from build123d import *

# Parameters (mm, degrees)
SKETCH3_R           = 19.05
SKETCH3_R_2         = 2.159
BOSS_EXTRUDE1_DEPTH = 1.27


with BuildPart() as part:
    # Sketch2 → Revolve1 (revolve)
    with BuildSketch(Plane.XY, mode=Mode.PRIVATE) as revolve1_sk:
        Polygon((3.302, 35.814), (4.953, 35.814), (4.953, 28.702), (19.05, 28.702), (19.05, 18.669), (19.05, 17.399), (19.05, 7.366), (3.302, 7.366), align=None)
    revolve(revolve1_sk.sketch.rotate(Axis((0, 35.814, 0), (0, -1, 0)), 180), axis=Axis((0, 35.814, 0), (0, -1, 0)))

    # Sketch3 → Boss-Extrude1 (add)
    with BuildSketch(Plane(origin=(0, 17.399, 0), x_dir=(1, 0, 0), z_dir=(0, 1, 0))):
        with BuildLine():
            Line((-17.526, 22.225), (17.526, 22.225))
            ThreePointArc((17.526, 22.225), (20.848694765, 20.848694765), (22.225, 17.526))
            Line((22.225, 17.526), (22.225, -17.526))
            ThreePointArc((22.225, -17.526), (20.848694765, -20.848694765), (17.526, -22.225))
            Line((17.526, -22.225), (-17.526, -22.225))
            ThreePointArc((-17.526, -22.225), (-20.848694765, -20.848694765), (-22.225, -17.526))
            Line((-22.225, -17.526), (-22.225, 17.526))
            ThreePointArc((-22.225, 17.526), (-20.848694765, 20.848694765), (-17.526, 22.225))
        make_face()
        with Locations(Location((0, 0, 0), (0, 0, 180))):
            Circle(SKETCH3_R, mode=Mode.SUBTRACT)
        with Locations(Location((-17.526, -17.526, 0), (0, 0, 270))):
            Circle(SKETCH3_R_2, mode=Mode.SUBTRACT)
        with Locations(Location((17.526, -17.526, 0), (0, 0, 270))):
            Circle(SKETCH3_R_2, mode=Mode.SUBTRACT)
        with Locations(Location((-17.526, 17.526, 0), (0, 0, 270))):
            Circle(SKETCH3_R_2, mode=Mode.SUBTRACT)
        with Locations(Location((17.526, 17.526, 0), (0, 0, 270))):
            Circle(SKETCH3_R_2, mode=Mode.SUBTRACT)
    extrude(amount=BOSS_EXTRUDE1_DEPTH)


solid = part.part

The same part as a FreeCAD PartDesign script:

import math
import FreeCAD as App
import Part
import Sketcher
from FreeCAD import Vector
Q = App.Units.Quantity


def add_polygon(sketch, points):
    """Adds a closed chain of lines whose ends are joined by coincident constraints."""
    first, n = sketch.GeometryCount, len(points)
    for a, b in zip(points, points[1:] + points[:1]):
        sketch.addGeometry(Part.LineSegment(App.Vector(*a, 0), App.Vector(*b, 0)), False)
    for i in range(n):
        sketch.addConstraint(Sketcher.Constraint("Coincident", first + i, 2, first + (i + 1) % n, 1))

doc = App.newDocument("Part")
params = doc.addObject("Spreadsheet::Sheet", "Params")
for row, (alias, value) in enumerate([
    ("sketch1_width", "0.62 in"),
    ("sketch1_height", "1.12 in"),
    ("sketch1_height2", "0.84 in"),
    ("sketch1_width2", "0.065 in"),
    ("revolution_angle", "360 deg"),
    ("sketch2_diameter", "1.5 in"),
    ("sketch2_diameter2", "0.17 in"),
    ("sketch2_radius", "0.185 in"),
    ("sketch2_width", "1.38 in"),
    ("pad1_length", "0.05 in"),
], start=1):
    params.set(f"A{row}", alias)
    params.set(f"B{row}", "=" + value)
    params.setAlias(f"B{row}", alias)

body = doc.addObject("PartDesign::Body", "Body")

sketch1 = doc.addObject("Sketcher::SketchObject", "Sketch")
body.addObject(sketch1)
sketch1.AttachmentSupport = (doc.XY_Plane, [""])
sketch1.MapMode = "FlatFace"
add_polygon(sketch1, [(5, 35.8), (3.3, 35.8), (3.3, 7.4), (19.1, 7.4), (19.1, 28.7), (5, 28.7)])
sketch1.addConstraint(Sketcher.Constraint("Horizontal", 0))
sketch1.addConstraint(Sketcher.Constraint("Vertical", 1))
sketch1.addConstraint(Sketcher.Constraint("Horizontal", 2))
sketch1.addConstraint(Sketcher.Constraint("Vertical", 3))
sketch1.addConstraint(Sketcher.Constraint("Horizontal", 4))
sketch1.addConstraint(Sketcher.Constraint("Vertical", 5))
sketch1.addConstraint(Sketcher.Constraint("DistanceX", 2, 1, 2, 2, Q("0.62 in")))
sketch1.addConstraint(Sketcher.Constraint("DistanceY", 1, 2, 1, 1, Q("1.12 in")))
sketch1.addConstraint(Sketcher.Constraint("DistanceY", 3, 1, 3, 2, Q("0.84 in")))
sketch1.addConstraint(Sketcher.Constraint("DistanceX", 0, 2, 0, 1, Q("0.065 in")))
sketch1.addConstraint(Sketcher.Constraint("DistanceX", -1, 1, 0, 2, Q("0.13 in")))
sketch1.addConstraint(Sketcher.Constraint("DistanceY", -1, 1, 0, 2, Q("1.41 in")))
sketch1.setExpression("Constraints[12]", "Params.sketch1_width")
sketch1.setExpression("Constraints[13]", "Params.sketch1_height")
sketch1.setExpression("Constraints[14]", "Params.sketch1_height2")
sketch1.setExpression("Constraints[15]", "Params.sketch1_width2")
revolution = doc.addObject("PartDesign::Revolution", "Revolution")
body.addObject(revolution)
revolution.Profile = sketch1
revolution.ReferenceAxis = (sketch1, ["V_Axis"])
revolution.setExpression("Angle", "Params.revolution_angle")

sketch2 = doc.addObject("Sketcher::SketchObject", "Sketch001")
body.addObject(sketch2)
sketch2.AttachmentSupport = (doc.XZ_Plane, [""])
sketch2.MapMode = "FlatFace"
sketch2.AttachmentOffset = App.Placement(Vector(0, 0, -0.685 * 25.4), App.Rotation())
sketch2.addGeometry(Part.LineSegment(Vector(17.5, -22.2, 0), Vector(-17.5, -22.2, 0)), False)
sketch2.addGeometry(Part.ArcOfCircle(Part.Circle(Vector(-17.5, -17.5, 0), Vector(0, 0, 1), 4.7), math.radians(180), math.radians(270)), False)
sketch2.addGeometry(Part.LineSegment(Vector(-22.2, -17.5, 0), Vector(-22.2, 17.5, 0)), False)
sketch2.addGeometry(Part.ArcOfCircle(Part.Circle(Vector(-17.5, 17.5, 0), Vector(0, 0, 1), 4.7), math.radians(90), math.radians(180)), False)
sketch2.addGeometry(Part.LineSegment(Vector(-17.5, 22.2, 0), Vector(17.5, 22.2, 0)), False)
sketch2.addGeometry(Part.ArcOfCircle(Part.Circle(Vector(17.5, 17.5, 0), Vector(0, 0, 1), 4.7), math.radians(0), math.radians(90)), False)
sketch2.addGeometry(Part.LineSegment(Vector(22.2, 17.5, 0), Vector(22.2, -17.5, 0)), False)
sketch2.addGeometry(Part.ArcOfCircle(Part.Circle(Vector(17.5, -17.5, 0), Vector(0, 0, 1), 4.7), math.radians(-90), math.radians(0)), False)
sketch2.addGeometry(Part.Circle(Vector(17.5, 17.5, 0), Vector(0, 0, 1), 2.2), False)
sketch2.addGeometry(Part.Circle(Vector(-17.5, 17.5, 0), Vector(0, 0, 1), 2.2), False)
sketch2.addGeometry(Part.Circle(Vector(17.5, -17.5, 0), Vector(0, 0, 1), 2.2), False)
sketch2.addGeometry(Part.Circle(Vector(0, 0, 0), Vector(0, 0, 1), 19.1), False)
sketch2.addGeometry(Part.Circle(Vector(-17.5, -17.5, 0), Vector(0, 0, 1), 2.2), False)
sketch2.addConstraint(Sketcher.Constraint("Tangent", 0, 2, 1, 2))
sketch2.addConstraint(Sketcher.Constraint("Tangent", 1, 1, 2, 1))
sketch2.addConstraint(Sketcher.Constraint("Tangent", 2, 2, 3, 2))
sketch2.addConstraint(Sketcher.Constraint("Tangent", 3, 1, 4, 1))
sketch2.addConstraint(Sketcher.Constraint("Tangent", 4, 2, 5, 2))
sketch2.addConstraint(Sketcher.Constraint("Tangent", 5, 1, 6, 1))
sketch2.addConstraint(Sketcher.Constraint("Tangent", 6, 2, 7, 2))
sketch2.addConstraint(Sketcher.Constraint("Tangent", 7, 1, 0, 1))
sketch2.addConstraint(Sketcher.Constraint("Horizontal", 0))
sketch2.addConstraint(Sketcher.Constraint("Vertical", 2))
sketch2.addConstraint(Sketcher.Constraint("Horizontal", 4))
sketch2.addConstraint(Sketcher.Constraint("Vertical", 6))
sketch2.addConstraint(Sketcher.Constraint("Coincident", 11, 3, -1, 1))
sketch2.addConstraint(Sketcher.Constraint("Coincident", 8, 3, 5, 3))
sketch2.addConstraint(Sketcher.Constraint("Coincident", 9, 3, 3, 3))
sketch2.addConstraint(Sketcher.Constraint("Coincident", 10, 3, 7, 3))
sketch2.addConstraint(Sketcher.Constraint("Coincident", 12, 3, 1, 3))
sketch2.addConstraint(Sketcher.Constraint("Equal", 1, 3))
sketch2.addConstraint(Sketcher.Constraint("Equal", 3, 5))
sketch2.addConstraint(Sketcher.Constraint("Equal", 5, 7))
sketch2.addConstraint(Sketcher.Constraint("Equal", 8, 9))
sketch2.addConstraint(Sketcher.Constraint("Equal", 9, 10))
sketch2.addConstraint(Sketcher.Constraint("Equal", 10, 12))
sketch2.addConstraint(Sketcher.Constraint("Symmetric", 1, 3, 5, 3, -1, 1))
sketch2.addConstraint(Sketcher.Constraint("Equal", 4, 2))
sketch2.addConstraint(Sketcher.Constraint("Diameter", 11, Q("1.5 in")))
sketch2.addConstraint(Sketcher.Constraint("Diameter", 8, Q("0.17 in")))
sketch2.addConstraint(Sketcher.Constraint("Radius", 1, Q("0.185 in")))
sketch2.addConstraint(Sketcher.Constraint("DistanceX", 0, 2, 0, 1, Q("1.38 in")))
sketch2.setExpression("Constraints[25]", "Params.sketch2_diameter")
sketch2.setExpression("Constraints[26]", "Params.sketch2_diameter2")
sketch2.setExpression("Constraints[27]", "Params.sketch2_radius")
sketch2.setExpression("Constraints[28]", "Params.sketch2_width")
pad1 = doc.addObject("PartDesign::Pad", "Pad")
body.addObject(pad1)
pad1.Profile = sketch2
pad1.setExpression("Length", "Params.pad1_length")
pad1.Reversed = True

doc.recompute()
